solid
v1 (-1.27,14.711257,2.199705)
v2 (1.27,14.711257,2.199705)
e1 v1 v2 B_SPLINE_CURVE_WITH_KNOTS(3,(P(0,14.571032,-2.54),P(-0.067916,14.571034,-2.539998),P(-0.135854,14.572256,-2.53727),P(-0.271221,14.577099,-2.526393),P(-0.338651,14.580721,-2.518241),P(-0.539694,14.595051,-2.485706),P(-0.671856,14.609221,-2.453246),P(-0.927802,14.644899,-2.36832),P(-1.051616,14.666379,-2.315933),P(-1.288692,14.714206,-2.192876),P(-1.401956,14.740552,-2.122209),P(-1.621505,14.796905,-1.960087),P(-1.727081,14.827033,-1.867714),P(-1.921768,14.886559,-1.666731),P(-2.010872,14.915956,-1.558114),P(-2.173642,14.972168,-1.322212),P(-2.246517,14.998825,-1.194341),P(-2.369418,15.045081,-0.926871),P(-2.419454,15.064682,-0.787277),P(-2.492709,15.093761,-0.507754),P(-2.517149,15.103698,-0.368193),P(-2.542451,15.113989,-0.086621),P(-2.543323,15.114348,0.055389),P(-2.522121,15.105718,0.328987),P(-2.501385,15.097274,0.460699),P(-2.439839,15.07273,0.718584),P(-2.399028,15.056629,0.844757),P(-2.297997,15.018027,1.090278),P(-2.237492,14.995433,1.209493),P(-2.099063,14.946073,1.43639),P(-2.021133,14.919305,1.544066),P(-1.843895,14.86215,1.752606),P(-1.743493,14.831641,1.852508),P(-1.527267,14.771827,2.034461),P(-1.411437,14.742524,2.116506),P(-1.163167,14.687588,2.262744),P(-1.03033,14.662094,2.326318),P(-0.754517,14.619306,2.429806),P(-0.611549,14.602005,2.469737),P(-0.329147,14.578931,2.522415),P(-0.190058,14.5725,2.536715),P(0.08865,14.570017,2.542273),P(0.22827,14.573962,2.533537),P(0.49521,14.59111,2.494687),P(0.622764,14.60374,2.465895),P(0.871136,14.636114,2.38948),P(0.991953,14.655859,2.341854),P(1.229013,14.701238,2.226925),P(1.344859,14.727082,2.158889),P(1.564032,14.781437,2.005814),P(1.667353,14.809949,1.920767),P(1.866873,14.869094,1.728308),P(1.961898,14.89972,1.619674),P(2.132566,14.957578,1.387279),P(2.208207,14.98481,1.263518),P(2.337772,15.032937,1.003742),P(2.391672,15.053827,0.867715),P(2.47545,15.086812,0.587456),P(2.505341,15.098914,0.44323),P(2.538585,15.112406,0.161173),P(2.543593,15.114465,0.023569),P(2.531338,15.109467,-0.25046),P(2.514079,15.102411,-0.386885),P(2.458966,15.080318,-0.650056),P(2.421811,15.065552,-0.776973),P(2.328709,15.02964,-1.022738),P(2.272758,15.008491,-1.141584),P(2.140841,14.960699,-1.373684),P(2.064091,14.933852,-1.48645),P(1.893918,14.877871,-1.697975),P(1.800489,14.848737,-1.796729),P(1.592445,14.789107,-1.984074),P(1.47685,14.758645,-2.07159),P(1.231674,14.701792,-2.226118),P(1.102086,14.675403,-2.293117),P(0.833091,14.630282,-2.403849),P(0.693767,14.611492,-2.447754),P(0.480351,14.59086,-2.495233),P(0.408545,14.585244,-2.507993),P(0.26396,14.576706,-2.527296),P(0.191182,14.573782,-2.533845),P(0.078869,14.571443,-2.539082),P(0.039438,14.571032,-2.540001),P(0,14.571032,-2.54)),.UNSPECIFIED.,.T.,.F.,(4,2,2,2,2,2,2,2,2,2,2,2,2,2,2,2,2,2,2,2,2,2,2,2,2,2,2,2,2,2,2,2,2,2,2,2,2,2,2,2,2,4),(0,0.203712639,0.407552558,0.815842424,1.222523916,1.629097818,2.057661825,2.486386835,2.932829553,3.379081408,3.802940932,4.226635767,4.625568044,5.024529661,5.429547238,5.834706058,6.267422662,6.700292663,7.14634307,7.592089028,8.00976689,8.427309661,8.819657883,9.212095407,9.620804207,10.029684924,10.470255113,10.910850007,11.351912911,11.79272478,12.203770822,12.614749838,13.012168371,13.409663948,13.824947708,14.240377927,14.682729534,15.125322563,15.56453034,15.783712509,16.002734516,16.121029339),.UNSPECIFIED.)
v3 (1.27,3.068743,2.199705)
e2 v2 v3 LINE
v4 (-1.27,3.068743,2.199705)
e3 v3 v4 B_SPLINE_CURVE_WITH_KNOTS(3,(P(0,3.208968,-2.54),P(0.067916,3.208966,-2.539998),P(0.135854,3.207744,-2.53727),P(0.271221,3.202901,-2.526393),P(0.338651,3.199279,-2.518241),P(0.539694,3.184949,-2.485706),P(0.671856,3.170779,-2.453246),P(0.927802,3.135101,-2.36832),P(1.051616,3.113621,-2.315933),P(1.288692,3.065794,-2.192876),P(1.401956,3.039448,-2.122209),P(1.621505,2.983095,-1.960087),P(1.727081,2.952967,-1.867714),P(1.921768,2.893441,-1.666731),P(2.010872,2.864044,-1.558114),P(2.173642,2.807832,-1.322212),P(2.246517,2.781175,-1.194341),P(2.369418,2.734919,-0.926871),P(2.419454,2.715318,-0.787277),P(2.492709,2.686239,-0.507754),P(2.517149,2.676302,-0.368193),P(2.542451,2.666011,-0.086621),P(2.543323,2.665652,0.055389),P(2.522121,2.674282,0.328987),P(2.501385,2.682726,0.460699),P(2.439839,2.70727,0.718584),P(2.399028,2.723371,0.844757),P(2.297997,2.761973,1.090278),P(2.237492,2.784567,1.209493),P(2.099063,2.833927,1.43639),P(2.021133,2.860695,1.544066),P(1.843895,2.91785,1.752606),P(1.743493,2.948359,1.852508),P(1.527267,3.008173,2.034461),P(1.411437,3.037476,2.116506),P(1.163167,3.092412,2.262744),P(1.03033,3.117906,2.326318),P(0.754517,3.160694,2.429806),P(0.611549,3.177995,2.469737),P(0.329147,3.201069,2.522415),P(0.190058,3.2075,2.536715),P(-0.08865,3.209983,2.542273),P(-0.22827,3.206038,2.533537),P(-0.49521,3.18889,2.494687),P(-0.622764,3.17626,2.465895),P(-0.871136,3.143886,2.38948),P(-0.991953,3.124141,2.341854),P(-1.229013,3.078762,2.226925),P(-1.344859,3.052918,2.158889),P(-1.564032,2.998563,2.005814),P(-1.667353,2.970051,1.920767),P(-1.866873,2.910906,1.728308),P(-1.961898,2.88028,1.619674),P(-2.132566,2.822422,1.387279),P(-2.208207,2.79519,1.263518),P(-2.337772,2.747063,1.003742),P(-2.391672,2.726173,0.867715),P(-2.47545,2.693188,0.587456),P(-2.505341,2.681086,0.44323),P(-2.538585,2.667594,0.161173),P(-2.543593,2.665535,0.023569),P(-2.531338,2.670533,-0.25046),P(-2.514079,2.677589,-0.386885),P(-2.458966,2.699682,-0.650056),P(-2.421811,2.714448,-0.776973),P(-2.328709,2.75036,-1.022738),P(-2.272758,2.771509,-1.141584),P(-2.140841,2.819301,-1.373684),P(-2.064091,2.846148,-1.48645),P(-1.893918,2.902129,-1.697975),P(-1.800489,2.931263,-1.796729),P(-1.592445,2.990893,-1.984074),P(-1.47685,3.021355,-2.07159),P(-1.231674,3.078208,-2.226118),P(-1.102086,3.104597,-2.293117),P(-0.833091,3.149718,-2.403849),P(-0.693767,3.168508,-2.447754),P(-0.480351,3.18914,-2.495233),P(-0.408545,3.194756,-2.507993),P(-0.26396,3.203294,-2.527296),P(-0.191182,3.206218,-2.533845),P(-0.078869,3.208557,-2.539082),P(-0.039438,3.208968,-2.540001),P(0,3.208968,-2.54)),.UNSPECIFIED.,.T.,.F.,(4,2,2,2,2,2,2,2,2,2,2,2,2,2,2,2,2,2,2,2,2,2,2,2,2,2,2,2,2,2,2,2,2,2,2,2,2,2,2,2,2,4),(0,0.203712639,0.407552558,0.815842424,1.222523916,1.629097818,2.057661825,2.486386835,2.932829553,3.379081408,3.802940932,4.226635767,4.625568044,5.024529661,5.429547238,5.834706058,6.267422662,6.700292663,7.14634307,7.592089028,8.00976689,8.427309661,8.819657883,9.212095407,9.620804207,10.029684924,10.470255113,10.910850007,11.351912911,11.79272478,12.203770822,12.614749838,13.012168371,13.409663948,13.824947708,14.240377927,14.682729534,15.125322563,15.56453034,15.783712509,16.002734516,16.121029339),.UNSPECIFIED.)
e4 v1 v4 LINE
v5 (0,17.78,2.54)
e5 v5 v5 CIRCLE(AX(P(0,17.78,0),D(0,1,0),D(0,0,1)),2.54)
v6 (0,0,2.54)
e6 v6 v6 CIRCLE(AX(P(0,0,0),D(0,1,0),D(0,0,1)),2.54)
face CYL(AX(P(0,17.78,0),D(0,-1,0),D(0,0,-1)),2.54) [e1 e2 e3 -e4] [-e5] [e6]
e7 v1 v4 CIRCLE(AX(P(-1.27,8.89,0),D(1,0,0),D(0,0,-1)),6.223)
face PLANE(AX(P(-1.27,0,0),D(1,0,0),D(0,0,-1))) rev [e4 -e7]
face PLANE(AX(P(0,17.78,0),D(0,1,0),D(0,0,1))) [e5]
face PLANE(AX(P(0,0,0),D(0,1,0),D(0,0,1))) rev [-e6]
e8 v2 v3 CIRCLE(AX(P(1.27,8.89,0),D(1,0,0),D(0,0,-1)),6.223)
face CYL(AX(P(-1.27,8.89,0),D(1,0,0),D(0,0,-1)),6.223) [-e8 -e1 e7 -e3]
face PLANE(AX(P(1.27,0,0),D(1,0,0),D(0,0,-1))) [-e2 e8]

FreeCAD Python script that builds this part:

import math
import FreeCAD as App
import Part
import Sketcher

V = App.Vector
Q = App.Units.Quantity

doc = App.newDocument("Part")
body = doc.addObject("PartDesign::Body", "Body")

# Sketch on XZ plane
sketch1 = body.newObject("Sketcher::SketchObject", "Sketch")
sketch1.AttachmentSupport = (doc.getObject("XZ_Plane"), [""])
sketch1.MapMode = "FlatFace"
sketch1.addGeometry(Part.Circle(V(0, 0, 0), V(0, 0, 1), 2.54), False)
sketch1.addConstraint(Sketcher.Constraint("Coincident", 0, 3, -1, 1))
sketch1.addConstraint(Sketcher.Constraint("Diameter", 0, Q("0.2 in")))
pad1 = body.newObject("PartDesign::Pad", "Pad")
pad1.Profile = sketch1
pad1.Length = Q("0.7 in")
pad1.Reversed = True

# Sketch on YZ plane
sketch2 = body.newObject("Sketcher::SketchObject", "Sketch001")
sketch2.AttachmentSupport = (doc.getObject("YZ_Plane"), [""])
sketch2.MapMode = "FlatFace"
sketch2.addGeometry(Part.LineSegment(V(2.667, 0, 0), V(15.113, 0, 0)), False)
sketch2.addGeometry(Part.ArcOfCircle(Part.Circle(V(8.89, 0, 0), V(0, 0, 1), 6.223), math.radians(0), math.radians(180)), False)
sketch2.addConstraint(Sketcher.Constraint("Coincident", 0, 1, 1, 2))
sketch2.addConstraint(Sketcher.Constraint("Coincident", 1, 1, 0, 2))
sketch2.addConstraint(Sketcher.Constraint("Horizontal", 0))
sketch2.addConstraint(Sketcher.Constraint("PointOnObject", 1, 3, -1))
sketch2.addConstraint(Sketcher.Constraint("PointOnObject", 0, 1, -1))
sketch2.addConstraint(Sketcher.Constraint("Radius", 1, Q("0.245 in")))
sketch2.addConstraint(Sketcher.Constraint("DistanceX", -1, 1, 1, 3, Q("0.35 in")))
pad2 = body.newObject("PartDesign::Pad", "Pad001")
pad2.Profile = sketch2
pad2.Type = "TwoLengths"
pad2.Length = Q("0.05 in")
pad2.Length2 = Q("0.05 in")

doc.recompute()
